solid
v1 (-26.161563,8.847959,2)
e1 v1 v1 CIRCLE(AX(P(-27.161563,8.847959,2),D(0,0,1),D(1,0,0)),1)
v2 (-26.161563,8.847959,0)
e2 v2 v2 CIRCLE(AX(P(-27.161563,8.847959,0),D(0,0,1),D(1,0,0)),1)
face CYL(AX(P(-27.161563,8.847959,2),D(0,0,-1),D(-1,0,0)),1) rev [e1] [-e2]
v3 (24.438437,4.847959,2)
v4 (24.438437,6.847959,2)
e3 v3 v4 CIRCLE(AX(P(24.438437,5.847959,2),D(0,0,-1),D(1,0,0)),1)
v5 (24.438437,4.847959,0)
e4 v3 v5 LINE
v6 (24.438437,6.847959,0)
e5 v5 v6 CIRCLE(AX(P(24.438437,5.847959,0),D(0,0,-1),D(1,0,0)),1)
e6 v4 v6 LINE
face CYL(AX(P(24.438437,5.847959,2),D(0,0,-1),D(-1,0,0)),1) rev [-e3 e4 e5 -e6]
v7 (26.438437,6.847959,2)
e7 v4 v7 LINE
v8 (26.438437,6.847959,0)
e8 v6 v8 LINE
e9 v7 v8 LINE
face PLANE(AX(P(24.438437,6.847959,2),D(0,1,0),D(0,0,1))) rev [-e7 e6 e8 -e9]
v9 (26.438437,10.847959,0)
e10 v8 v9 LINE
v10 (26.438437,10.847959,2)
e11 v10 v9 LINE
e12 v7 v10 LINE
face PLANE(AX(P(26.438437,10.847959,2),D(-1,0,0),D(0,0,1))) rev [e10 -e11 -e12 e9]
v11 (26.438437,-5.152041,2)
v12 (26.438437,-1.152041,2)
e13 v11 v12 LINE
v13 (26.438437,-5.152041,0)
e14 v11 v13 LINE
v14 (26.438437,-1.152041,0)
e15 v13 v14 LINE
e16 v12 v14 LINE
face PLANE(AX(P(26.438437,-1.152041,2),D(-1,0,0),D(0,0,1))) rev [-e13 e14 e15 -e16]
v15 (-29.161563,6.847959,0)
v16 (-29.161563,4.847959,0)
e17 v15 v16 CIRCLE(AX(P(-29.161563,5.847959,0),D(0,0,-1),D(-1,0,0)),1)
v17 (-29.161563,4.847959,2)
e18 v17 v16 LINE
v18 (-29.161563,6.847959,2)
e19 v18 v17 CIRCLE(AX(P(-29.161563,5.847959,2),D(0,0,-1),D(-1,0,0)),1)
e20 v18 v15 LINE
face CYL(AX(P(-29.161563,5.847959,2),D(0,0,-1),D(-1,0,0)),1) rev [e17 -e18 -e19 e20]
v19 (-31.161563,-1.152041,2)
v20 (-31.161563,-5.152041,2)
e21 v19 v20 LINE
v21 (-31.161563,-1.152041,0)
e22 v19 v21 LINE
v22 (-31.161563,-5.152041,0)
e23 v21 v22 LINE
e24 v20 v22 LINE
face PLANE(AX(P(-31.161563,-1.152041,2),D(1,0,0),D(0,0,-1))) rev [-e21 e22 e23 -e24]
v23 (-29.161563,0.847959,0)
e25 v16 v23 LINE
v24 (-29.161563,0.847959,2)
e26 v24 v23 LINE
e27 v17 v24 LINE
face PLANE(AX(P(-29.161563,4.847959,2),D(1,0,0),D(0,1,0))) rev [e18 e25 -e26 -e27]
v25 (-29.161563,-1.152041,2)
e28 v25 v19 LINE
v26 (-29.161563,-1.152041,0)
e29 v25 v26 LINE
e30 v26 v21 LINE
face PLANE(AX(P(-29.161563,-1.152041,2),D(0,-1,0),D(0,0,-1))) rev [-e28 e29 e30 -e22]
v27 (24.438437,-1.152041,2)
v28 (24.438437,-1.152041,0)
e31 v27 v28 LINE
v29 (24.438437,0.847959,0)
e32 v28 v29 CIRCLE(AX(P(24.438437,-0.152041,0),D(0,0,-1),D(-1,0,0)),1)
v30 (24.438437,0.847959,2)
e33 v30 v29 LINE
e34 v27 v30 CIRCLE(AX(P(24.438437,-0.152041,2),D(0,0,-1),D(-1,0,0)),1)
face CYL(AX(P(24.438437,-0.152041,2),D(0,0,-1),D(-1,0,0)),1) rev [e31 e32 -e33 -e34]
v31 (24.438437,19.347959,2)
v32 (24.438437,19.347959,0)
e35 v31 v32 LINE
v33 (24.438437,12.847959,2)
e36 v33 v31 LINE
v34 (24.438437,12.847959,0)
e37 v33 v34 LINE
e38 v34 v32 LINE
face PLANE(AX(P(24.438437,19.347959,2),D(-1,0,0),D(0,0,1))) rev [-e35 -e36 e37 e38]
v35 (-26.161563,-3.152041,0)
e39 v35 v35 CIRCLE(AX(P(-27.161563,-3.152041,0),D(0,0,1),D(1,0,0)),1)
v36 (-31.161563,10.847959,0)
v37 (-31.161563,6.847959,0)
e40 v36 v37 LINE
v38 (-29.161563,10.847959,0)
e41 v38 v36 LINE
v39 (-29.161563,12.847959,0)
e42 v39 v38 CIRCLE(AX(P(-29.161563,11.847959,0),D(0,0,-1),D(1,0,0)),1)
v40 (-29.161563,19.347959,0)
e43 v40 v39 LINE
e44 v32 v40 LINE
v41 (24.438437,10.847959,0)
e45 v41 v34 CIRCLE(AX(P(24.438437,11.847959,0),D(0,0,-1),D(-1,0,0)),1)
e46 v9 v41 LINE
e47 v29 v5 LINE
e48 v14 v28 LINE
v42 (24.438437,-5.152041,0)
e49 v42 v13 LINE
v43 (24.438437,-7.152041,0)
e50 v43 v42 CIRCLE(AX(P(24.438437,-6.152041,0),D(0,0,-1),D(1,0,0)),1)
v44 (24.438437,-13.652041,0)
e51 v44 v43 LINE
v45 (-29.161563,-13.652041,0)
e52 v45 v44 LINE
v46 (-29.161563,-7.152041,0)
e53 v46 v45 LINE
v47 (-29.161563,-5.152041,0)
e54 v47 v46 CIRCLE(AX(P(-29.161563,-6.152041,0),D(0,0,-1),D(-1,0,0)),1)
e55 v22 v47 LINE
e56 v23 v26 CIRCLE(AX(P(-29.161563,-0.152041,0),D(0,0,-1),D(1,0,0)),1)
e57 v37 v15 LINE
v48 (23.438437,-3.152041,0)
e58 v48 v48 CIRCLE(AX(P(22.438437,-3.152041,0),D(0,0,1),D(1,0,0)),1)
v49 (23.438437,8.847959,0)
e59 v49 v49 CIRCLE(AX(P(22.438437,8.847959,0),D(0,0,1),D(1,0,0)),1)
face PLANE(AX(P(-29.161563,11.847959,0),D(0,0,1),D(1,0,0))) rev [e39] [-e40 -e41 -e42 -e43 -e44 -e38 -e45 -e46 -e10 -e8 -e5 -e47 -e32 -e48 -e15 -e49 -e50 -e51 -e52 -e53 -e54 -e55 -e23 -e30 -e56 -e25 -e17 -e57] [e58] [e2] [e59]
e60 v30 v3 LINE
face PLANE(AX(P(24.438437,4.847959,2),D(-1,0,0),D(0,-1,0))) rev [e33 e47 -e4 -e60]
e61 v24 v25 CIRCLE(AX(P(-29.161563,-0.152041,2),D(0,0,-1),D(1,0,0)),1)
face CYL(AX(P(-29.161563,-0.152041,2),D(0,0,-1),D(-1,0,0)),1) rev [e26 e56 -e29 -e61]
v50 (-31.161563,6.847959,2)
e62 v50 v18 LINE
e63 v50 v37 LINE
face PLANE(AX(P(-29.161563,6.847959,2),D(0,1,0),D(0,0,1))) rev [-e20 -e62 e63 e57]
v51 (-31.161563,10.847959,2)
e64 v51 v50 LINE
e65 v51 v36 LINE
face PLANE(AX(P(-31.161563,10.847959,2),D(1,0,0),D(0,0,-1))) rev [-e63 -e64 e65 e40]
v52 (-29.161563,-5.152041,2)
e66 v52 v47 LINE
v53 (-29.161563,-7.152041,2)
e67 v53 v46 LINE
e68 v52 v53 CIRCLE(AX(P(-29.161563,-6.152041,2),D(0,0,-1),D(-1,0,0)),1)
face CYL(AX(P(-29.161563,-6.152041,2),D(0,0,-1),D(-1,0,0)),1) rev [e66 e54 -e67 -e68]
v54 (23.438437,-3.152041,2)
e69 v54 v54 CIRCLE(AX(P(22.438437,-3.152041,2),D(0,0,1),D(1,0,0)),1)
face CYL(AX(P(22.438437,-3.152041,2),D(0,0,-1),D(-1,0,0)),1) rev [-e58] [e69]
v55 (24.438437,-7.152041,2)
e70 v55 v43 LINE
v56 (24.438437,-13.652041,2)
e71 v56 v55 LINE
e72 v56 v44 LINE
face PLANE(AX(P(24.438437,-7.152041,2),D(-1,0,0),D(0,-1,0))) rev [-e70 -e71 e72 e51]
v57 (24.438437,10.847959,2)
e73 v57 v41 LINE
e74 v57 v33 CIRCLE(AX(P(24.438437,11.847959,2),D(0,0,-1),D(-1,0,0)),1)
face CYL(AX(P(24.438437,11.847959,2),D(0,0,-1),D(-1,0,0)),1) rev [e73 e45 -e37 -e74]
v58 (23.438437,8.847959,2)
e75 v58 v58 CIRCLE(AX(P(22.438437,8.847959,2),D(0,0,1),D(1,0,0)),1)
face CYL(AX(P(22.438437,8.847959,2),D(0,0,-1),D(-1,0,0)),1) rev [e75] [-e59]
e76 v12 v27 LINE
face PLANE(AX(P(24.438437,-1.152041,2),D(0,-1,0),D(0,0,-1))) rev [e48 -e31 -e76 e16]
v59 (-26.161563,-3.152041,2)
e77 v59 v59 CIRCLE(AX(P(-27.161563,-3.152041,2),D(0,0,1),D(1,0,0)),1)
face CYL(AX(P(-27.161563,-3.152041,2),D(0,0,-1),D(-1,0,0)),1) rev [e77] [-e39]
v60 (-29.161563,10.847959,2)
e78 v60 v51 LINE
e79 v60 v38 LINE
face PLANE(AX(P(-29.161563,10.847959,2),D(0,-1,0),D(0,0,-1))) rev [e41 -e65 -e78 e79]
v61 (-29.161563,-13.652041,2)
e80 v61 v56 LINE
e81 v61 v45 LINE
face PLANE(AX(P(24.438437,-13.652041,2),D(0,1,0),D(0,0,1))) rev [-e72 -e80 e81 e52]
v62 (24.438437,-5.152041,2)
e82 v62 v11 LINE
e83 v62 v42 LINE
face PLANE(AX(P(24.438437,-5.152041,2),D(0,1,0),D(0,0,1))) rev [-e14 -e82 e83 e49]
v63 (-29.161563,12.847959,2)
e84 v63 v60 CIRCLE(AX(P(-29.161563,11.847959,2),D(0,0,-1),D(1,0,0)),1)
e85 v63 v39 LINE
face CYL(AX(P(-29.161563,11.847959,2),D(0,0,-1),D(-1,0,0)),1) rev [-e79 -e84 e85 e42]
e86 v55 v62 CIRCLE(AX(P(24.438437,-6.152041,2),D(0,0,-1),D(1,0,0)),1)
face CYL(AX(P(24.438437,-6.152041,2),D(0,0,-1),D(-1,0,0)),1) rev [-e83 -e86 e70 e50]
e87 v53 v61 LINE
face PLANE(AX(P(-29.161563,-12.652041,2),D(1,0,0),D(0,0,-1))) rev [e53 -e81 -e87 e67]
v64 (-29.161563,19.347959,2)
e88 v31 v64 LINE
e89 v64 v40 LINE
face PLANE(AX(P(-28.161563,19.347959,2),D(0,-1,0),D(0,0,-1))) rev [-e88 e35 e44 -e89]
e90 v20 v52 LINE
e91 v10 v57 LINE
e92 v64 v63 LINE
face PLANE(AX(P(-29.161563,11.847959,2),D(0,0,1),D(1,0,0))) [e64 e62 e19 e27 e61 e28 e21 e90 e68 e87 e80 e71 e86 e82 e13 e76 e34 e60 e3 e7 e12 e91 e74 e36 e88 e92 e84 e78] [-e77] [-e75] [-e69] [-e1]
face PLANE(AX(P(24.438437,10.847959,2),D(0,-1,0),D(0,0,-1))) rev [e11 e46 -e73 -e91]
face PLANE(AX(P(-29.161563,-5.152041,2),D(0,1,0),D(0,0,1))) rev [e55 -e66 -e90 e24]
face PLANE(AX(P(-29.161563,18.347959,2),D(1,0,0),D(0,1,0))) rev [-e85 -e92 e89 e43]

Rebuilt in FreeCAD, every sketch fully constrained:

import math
import FreeCAD as App
import Part
import Sketcher
from FreeCAD import Vector
Q = App.Units.Quantity

doc = App.newDocument("Part")
body = doc.addObject("PartDesign::Body", "Body")

# Sketch on XY plane
sketch1 = doc.addObject("Sketcher::SketchObject", "Sketch")
body.addObject(sketch1)
sketch1.AttachmentSupport = (doc.XY_Plane, [""])
sketch1.MapMode = "FlatFace"
sketch1.addGeometry([
    Part.LineSegment(Vector(-29.2, 19.3, 0), Vector(-29.2, 12.8, 0)),  # 0
    Part.ArcOfCircle(Part.Circle(Vector(-29.2, 11.8, 0), Vector(0, 0, 1), 1), math.radians(-90), math.radians(90)),  # 1
    Part.LineSegment(Vector(-29.2, 10.8, 0), Vector(-31.2, 10.8, 0)),  # 2
    Part.LineSegment(Vector(-31.2, 10.8, 0), Vector(-31.2, 6.8, 0)),  # 3
    Part.LineSegment(Vector(-31.2, 6.8, 0), Vector(-29.2, 6.8, 0)),  # 4
    Part.ArcOfCircle(Part.Circle(Vector(-29.2, 5.8, 0), Vector(0, 0, 1), 1), math.radians(-90), math.radians(90)),  # 5
    Part.LineSegment(Vector(-29.2, 4.8, 0), Vector(-29.2, 0.8, 0)),  # 6
    Part.ArcOfCircle(Part.Circle(Vector(-29.2, -0.2, 0), Vector(0, 0, 1), 1), math.radians(-90), math.radians(90)),  # 7
    Part.LineSegment(Vector(-29.2, -1.2, 0), Vector(-31.2, -1.2, 0)),  # 8
    Part.LineSegment(Vector(-31.2, -1.2, 0), Vector(-31.2, -5.2, 0)),  # 9
    Part.LineSegment(Vector(-31.2, -5.2, 0), Vector(-29.2, -5.2, 0)),  # 10
    Part.ArcOfCircle(Part.Circle(Vector(-29.2, -6.2, 0), Vector(0, 0, 1), 1), math.radians(-90), math.radians(90)),  # 11
    Part.LineSegment(Vector(-29.2, -7.2, 0), Vector(-29.2, -13.7, 0)),  # 12
    Part.LineSegment(Vector(-29.2, -13.7, 0), Vector(24.4, -13.7, 0)),  # 13
    Part.LineSegment(Vector(24.4, -13.7, 0), Vector(24.4, -7.2, 0)),  # 14
    Part.ArcOfCircle(Part.Circle(Vector(24.4, -6.2, 0), Vector(0, 0, 1), 1), math.radians(90), math.radians(270)),  # 15
    Part.LineSegment(Vector(24.4, -5.2, 0), Vector(26.4, -5.2, 0)),  # 16
    Part.LineSegment(Vector(26.4, -5.2, 0), Vector(26.4, -1.2, 0)),  # 17
    Part.LineSegment(Vector(26.4, -1.2, 0), Vector(24.4, -1.2, 0)),  # 18
    Part.ArcOfCircle(Part.Circle(Vector(24.4, -0.2, 0), Vector(0, 0, 1), 1), math.radians(90), math.radians(270)),  # 19
    Part.LineSegment(Vector(24.4, 0.8, 0), Vector(24.4, 4.8, 0)),  # 20
    Part.ArcOfCircle(Part.Circle(Vector(24.4, 5.8, 0), Vector(0, 0, 1), 1), math.radians(90), math.radians(270)),  # 21
    Part.LineSegment(Vector(24.4, 6.8, 0), Vector(26.4, 6.8, 0)),  # 22
    Part.LineSegment(Vector(26.4, 6.8, 0), Vector(26.4, 10.8, 0)),  # 23
    Part.LineSegment(Vector(26.4, 10.8, 0), Vector(24.4, 10.8, 0)),  # 24
    Part.ArcOfCircle(Part.Circle(Vector(24.4, 11.8, 0), Vector(0, 0, 1), 1), math.radians(90), math.radians(270)),  # 25
    Part.LineSegment(Vector(24.4, 12.8, 0), Vector(24.4, 19.3, 0)),  # 26
    Part.LineSegment(Vector(24.4, 19.3, 0), Vector(-29.2, 19.3, 0)),  # 27
    Part.Circle(Vector(-27.2, -3.2, 0), Vector(0, 0, 1), 1),  # 28
    Part.Circle(Vector(22.4, -3.2, 0), Vector(0, 0, 1), 1),  # 29
    Part.Circle(Vector(-27.2, 8.8, 0), Vector(0, 0, 1), 1),  # 30
    Part.Circle(Vector(22.4, 8.8, 0), Vector(0, 0, 1), 1),  # 31
], False)
sketch1.addConstraint([
    Sketcher.Constraint("Coincident", 0, 2, 1, 2),
    Sketcher.Constraint("Tangent", 1, 1, 2, 1),
    Sketcher.Constraint("Coincident", 2, 2, 3, 1),
    Sketcher.Constraint("Coincident", 3, 2, 4, 1),
    Sketcher.Constraint("Tangent", 4, 2, 5, 2),
    Sketcher.Constraint("Coincident", 5, 1, 6, 1),
    Sketcher.Constraint("Coincident", 6, 2, 7, 2),
    Sketcher.Constraint("Tangent", 7, 1, 8, 1),
    Sketcher.Constraint("Coincident", 8, 2, 9, 1),
    Sketcher.Constraint("Coincident", 9, 2, 10, 1),
    Sketcher.Constraint("Tangent", 10, 2, 11, 2),
    Sketcher.Constraint("Coincident", 11, 1, 12, 1),
    Sketcher.Constraint("Coincident", 12, 2, 13, 1),
    Sketcher.Constraint("Coincident", 13, 2, 14, 1),
    Sketcher.Constraint("Coincident", 14, 2, 15, 2),
    Sketcher.Constraint("Tangent", 15, 1, 16, 1),
    Sketcher.Constraint("Coincident", 16, 2, 17, 1),
    Sketcher.Constraint("Coincident", 17, 2, 18, 1),
    Sketcher.Constraint("Tangent", 18, 2, 19, 2),
    Sketcher.Constraint("Coincident", 19, 1, 20, 1),
    Sketcher.Constraint("Coincident", 20, 2, 21, 2),
    Sketcher.Constraint("Tangent", 21, 1, 22, 1),
    Sketcher.Constraint("Coincident", 22, 2, 23, 1),
    Sketcher.Constraint("Coincident", 23, 2, 24, 1),
    Sketcher.Constraint("Tangent", 24, 2, 25, 2),
    Sketcher.Constraint("Coincident", 25, 1, 26, 1),
    Sketcher.Constraint("Coincident", 26, 2, 27, 1),
    Sketcher.Constraint("Coincident", 27, 2, 0, 1),
    Sketcher.Constraint("Vertical", 0),
    Sketcher.Constraint("Horizontal", 2),
    Sketcher.Constraint("Vertical", 3),
    Sketcher.Constraint("Horizontal", 4),
    Sketcher.Constraint("Vertical", 6),
    Sketcher.Constraint("Horizontal", 8),
    Sketcher.Constraint("Vertical", 9),
    Sketcher.Constraint("Horizontal", 10),
    Sketcher.Constraint("Vertical", 12),
    Sketcher.Constraint("Horizontal", 13),
    Sketcher.Constraint("Vertical", 14),
    Sketcher.Constraint("Horizontal", 16),
    Sketcher.Constraint("Vertical", 17),
    Sketcher.Constraint("Horizontal", 18),
    Sketcher.Constraint("Vertical", 20),
    Sketcher.Constraint("Horizontal", 22),
    Sketcher.Constraint("Vertical", 23),
    Sketcher.Constraint("Horizontal", 24),
    Sketcher.Constraint("Vertical", 26),
    Sketcher.Constraint("Horizontal", 27),
    Sketcher.Constraint("Equal", 1, 5),
    Sketcher.Constraint("Equal", 5, 7),
    Sketcher.Constraint("Equal", 7, 11),
    Sketcher.Constraint("Equal", 11, 15),
    Sketcher.Constraint("Equal", 15, 19),
    Sketcher.Constraint("Equal", 19, 21),
    Sketcher.Constraint("Equal", 21, 25),
    Sketcher.Constraint("Equal", 25, 28),
    Sketcher.Constraint("Equal", 28, 29),
    Sketcher.Constraint("Equal", 29, 30),
    Sketcher.Constraint("Equal", 30, 31),
    Sketcher.Constraint("Horizontal", 11, 3, 15, 3),
    Sketcher.Constraint("Horizontal", 7, 3, 19, 3),
    Sketcher.Constraint("Horizontal", 5, 3, 21, 3),
    Sketcher.Constraint("Horizontal", 1, 3, 25, 3),
    Sketcher.Constraint("Horizontal", 28, 3, 29, 3),
    Sketcher.Constraint("Horizontal", 30, 3, 31, 3),
    Sketcher.Constraint("Vertical", 1, 3, 5, 3),
    Sketcher.Constraint("Vertical", 5, 3, 7, 3),
    Sketcher.Constraint("Vertical", 7, 3, 11, 3),
    Sketcher.Constraint("Vertical", 15, 3, 19, 3),
    Sketcher.Constraint("Vertical", 19, 3, 21, 3),
    Sketcher.Constraint("Vertical", 21, 3, 25, 3),
    Sketcher.Constraint("Vertical", 28, 3, 30, 3),
    Sketcher.Constraint("Vertical", 29, 3, 31, 3),
    Sketcher.Constraint("Vertical", 11, 3, 0, 2),
    Sketcher.Constraint("Vertical", 4, 2, 5, 1),
    Sketcher.Constraint("Vertical", 3, 2, 8, 2),
    Sketcher.Constraint("Vertical", 10, 2, 11, 1),
    Sketcher.Constraint("Vertical", 25, 3, 13, 2),
    Sketcher.Constraint("Vertical", 18, 2, 19, 1),
    Sketcher.Constraint("Vertical", 17, 2, 22, 2),
    Sketcher.Constraint("Vertical", 24, 2, 25, 1),
    Sketcher.Constraint("Equal", 10, 16),
    Sketcher.Constraint("Equal", 3, 6),
    Sketcher.Constraint("Equal", 6, 9),
    Sketcher.Constraint("Equal", 0, 12),
    Sketcher.Constraint("Diameter", 28, Q("2 mm")),
    Sketcher.Constraint("DistanceX", 2, 2, 2, 1, Q("2 mm")),
    Sketcher.Constraint("DistanceY", 3, 2, 3, 1, Q("4 mm")),
    Sketcher.Constraint("DistanceX", 13, 1, 13, 2, Q("53.6 mm")),
    Sketcher.Constraint("DistanceY", 0, 2, 0, 1, Q("6.5 mm")),
    Sketcher.Constraint("DistanceX", 7, 3, 28, 3, Q("2 mm")),
    Sketcher.Constraint("DistanceY", 28, 3, 7, 3, Q("3 mm")),
    Sketcher.Constraint("DistanceX", 29, 3, 19, 3, Q("2 mm")),
    Sketcher.Constraint("DistanceY", 30, 3, 1, 3, Q("3 mm")),
    Sketcher.Constraint("DistanceY", -1, 1, 1, 3, Q("11.847959 mm")),
    Sketcher.Constraint("DistanceX", 1, 3, -1, 1, Q("29.161563 mm")),
])
pad1 = doc.addObject("PartDesign::Pad", "Pad")
body.addObject(pad1)
pad1.Profile = sketch1
pad1.Length = 2

doc.recompute()
